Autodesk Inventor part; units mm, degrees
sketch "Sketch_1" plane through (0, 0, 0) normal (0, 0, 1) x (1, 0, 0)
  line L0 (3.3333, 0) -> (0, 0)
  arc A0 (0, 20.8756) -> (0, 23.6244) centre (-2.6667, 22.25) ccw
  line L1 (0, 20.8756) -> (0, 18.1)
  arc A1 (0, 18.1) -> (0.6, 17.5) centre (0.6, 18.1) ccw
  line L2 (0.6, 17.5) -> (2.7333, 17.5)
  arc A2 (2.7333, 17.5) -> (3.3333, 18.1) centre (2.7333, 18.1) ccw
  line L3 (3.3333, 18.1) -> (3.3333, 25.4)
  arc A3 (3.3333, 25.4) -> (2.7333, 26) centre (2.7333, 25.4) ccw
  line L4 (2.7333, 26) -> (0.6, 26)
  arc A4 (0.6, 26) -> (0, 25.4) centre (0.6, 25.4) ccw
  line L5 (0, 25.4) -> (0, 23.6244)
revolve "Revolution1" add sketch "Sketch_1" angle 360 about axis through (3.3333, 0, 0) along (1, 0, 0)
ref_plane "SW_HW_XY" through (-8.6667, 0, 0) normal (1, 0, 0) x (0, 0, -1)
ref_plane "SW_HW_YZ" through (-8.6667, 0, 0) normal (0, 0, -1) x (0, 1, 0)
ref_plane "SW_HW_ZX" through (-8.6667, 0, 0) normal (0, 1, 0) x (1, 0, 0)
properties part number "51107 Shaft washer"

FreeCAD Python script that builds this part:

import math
import FreeCAD as App
import Part
import Sketcher
Q = App.Units.Quantity

doc = App.newDocument("Part")
params = doc.addObject("Spreadsheet::Sheet", "Params")
for row, (alias, value) in enumerate([
    ("sketch1_radius", "3 mm"),
    ("sketch1_radius2", "0.6 mm"),
    ("sketch1_height", "7.3 mm"),
    ("revolution_angle", "360 deg"),
], start=1):
    params.set(f"A{row}", alias)
    params.set(f"B{row}", "=" + value)
    params.setAlias(f"B{row}", alias)

body = doc.addObject("PartDesign::Body", "Body")

sketch1 = body.newObject("Sketcher::SketchObject", "Sketch")
sketch1.AttachmentSupport = (doc.getObject("XY_Plane"), [""])
sketch1.MapMode = "FlatFace"
sketch1.addGeometry([
    Part.ArcOfCircle(Part.Circle(App.Vector(-2.7, 22.2, 0), App.Vector(0, 0, 1), 3), math.radians(-27), math.radians(27)),
    Part.LineSegment(App.Vector(0, 20.9, 0), App.Vector(0, 18.1, 0)),
    Part.ArcOfCircle(Part.Circle(App.Vector(0.6, 18.1, 0), App.Vector(0, 0, 1), 0.6), math.radians(180), math.radians(270)),
    Part.LineSegment(App.Vector(0.6, 17.5, 0), App.Vector(2.7, 17.5, 0)),
    Part.ArcOfCircle(Part.Circle(App.Vector(2.7, 18.1, 0), App.Vector(0, 0, 1), 0.6), math.radians(-90), math.radians(0)),
    Part.LineSegment(App.Vector(3.3, 18.1, 0), App.Vector(3.3, 25.4, 0)),
    Part.ArcOfCircle(Part.Circle(App.Vector(2.7, 25.4, 0), App.Vector(0, 0, 1), 0.6), math.radians(0), math.radians(90)),
    Part.LineSegment(App.Vector(2.7, 26, 0), App.Vector(0.6, 26, 0)),
    Part.ArcOfCircle(Part.Circle(App.Vector(0.6, 25.4, 0), App.Vector(0, 0, 1), 0.6), math.radians(90), math.radians(180)),
    Part.LineSegment(App.Vector(0, 25.4, 0), App.Vector(0, 23.6, 0)),
], False)
sketch1.addConstraint([
    Sketcher.Constraint("Coincident", 0, 1, 1, 1),
    Sketcher.Constraint("Tangent", 1, 2, 2, 1),
    Sketcher.Constraint("Tangent", 2, 2, 3, 1),
    Sketcher.Constraint("Tangent", 3, 2, 4, 1),
    Sketcher.Constraint("Tangent", 4, 2, 5, 1),
    Sketcher.Constraint("Tangent", 5, 2, 6, 1),
    Sketcher.Constraint("Tangent", 6, 2, 7, 1),
    Sketcher.Constraint("Tangent", 7, 2, 8, 1),
    Sketcher.Constraint("Tangent", 8, 2, 9, 1),
    Sketcher.Constraint("Coincident", 9, 2, 0, 2),
    Sketcher.Constraint("Vertical", 1),
    Sketcher.Constraint("Horizontal", 3),
    Sketcher.Constraint("Vertical", 5),
    Sketcher.Constraint("Horizontal", 7),
    Sketcher.Constraint("Vertical", 9),
    Sketcher.Constraint("Equal", 2, 4),
    Sketcher.Constraint("Equal", 4, 6),
    Sketcher.Constraint("Equal", 6, 8),
    Sketcher.Constraint("PointOnObject", 0, 1, -2),
    Sketcher.Constraint("PointOnObject", 8, 2, -2),
    Sketcher.Constraint("Radius", 0, Q("3 mm")),
    Sketcher.Constraint("Radius", 2, Q("0.6 mm")),
    Sketcher.Constraint("DistanceY", 5, 1, 5, 2, Q("7.3 mm")),
    Sketcher.Constraint("DistanceY", -1, 1, 6, 2, Q("26 mm")),
    Sketcher.Constraint("DistanceX", 0, 3, 5, 2, Q("6 mm")),
    Sketcher.Constraint("DistanceY", -1, 1, 0, 3, Q("22.25 mm")),
    Sketcher.Constraint("DistanceX", 3, 1, 3, 2, Q("2.1333 mm")),
])
sketch1.setExpression("Constraints[20]", "Params.sketch1_radius")
sketch1.setExpression("Constraints[21]", "Params.sketch1_radius2")
sketch1.setExpression("Constraints[22]", "Params.sketch1_height")
revolution = body.newObject("PartDesign::Revolution", "Revolution")
revolution.Profile = sketch1
revolution.ReferenceAxis = (sketch1, ["H_Axis"])
revolution.setExpression("Angle", "Params.revolution_angle")

doc.recompute()
